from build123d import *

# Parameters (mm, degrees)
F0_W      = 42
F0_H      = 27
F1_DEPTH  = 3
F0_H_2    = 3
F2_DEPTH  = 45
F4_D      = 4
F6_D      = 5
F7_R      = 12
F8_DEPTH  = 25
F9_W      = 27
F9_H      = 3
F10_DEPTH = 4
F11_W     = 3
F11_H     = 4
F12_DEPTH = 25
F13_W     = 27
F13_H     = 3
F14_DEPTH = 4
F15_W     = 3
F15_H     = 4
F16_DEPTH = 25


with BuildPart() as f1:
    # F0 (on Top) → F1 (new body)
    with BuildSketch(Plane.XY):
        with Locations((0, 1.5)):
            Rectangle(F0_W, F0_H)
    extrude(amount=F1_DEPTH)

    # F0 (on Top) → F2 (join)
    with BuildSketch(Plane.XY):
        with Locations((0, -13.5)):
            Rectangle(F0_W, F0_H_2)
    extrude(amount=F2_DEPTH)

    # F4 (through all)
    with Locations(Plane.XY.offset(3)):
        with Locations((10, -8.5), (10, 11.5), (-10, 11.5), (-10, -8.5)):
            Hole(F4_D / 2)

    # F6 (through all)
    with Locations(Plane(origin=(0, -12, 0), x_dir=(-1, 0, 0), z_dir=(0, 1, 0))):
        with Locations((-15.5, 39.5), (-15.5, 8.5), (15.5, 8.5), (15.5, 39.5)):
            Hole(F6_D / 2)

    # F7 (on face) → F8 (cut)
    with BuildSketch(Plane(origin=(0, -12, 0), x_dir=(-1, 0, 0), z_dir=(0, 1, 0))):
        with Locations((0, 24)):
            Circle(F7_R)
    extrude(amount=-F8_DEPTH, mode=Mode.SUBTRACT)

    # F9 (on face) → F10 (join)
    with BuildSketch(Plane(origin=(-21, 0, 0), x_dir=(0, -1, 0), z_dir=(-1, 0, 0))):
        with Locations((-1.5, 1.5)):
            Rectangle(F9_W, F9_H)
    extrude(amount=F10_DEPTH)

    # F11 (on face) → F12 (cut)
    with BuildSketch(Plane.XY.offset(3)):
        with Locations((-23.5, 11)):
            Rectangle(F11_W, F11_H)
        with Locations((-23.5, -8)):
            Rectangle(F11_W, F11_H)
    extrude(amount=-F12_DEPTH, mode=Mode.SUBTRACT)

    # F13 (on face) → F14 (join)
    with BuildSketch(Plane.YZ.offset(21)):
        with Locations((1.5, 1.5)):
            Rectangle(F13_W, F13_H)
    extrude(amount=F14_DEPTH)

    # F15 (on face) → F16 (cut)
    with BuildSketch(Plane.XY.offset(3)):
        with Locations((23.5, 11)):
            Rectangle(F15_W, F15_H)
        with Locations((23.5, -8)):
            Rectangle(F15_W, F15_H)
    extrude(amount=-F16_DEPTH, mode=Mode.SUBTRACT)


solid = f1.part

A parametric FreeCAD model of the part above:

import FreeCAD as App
import Part
import Sketcher
from FreeCAD import Vector

doc = App.newDocument("Part")
body = doc.addObject("PartDesign::Body", "Body")

sketch1 = doc.addObject("Sketcher::SketchObject", "Sketch")
body.addObject(sketch1)
sketch1.AttachmentSupport = (doc.XY_Plane, [""])
sketch1.MapMode = "FlatFace"
sketch1.addGeometry([
    Part.LineSegment(Vector(-21, 15, 0), Vector(-21, -12, 0)),
    Part.LineSegment(Vector(-21, -12, 0), Vector(21, -12, 0)),
    Part.LineSegment(Vector(21, -12, 0), Vector(21, 15, 0)),
    Part.LineSegment(Vector(21, 15, 0), Vector(-21, 15, 0)),
], False)
sketch1.addConstraint([
    Sketcher.Constraint("Coincident", 0, 2, 1, 1),
    Sketcher.Constraint("Coincident", 1, 2, 2, 1),
    Sketcher.Constraint("Coincident", 2, 2, 3, 1),
    Sketcher.Constraint("Coincident", 3, 2, 0, 1),
    Sketcher.Constraint("Vertical", 0),
    Sketcher.Constraint("Horizontal", 1),
    Sketcher.Constraint("Vertical", 2),
    Sketcher.Constraint("Horizontal", 3),
    Sketcher.Constraint("DistanceX", 1, 1, 1, 2, 42.0),
    Sketcher.Constraint("DistanceY", 0, 2, 0, 1, 27.0),
    Sketcher.Constraint("DistanceX", 0, 2, -1, 1, 21.0),
    Sketcher.Constraint("DistanceY", 0, 2, -1, 1, 12.0),
])
pad1 = doc.addObject("PartDesign::Pad", "Pad")
body.addObject(pad1)
pad1.Profile = sketch1
pad1.Length = 3

sketch2 = doc.addObject("Sketcher::SketchObject", "Sketch001")
body.addObject(sketch2)
sketch2.AttachmentSupport = (doc.XY_Plane, [""])
sketch2.MapMode = "FlatFace"
sketch2.addGeometry([
    Part.LineSegment(Vector(-21, -12, 0), Vector(-21, -15, 0)),
    Part.LineSegment(Vector(-21, -15, 0), Vector(21, -15, 0)),
    Part.LineSegment(Vector(21, -15, 0), Vector(21, -12, 0)),
    Part.LineSegment(Vector(21, -12, 0), Vector(-21, -12, 0)),
], False)
sketch2.addConstraint([
    Sketcher.Constraint("Coincident", 0, 2, 1, 1),
    Sketcher.Constraint("Coincident", 1, 2, 2, 1),
    Sketcher.Constraint("Coincident", 2, 2, 3, 1),
    Sketcher.Constraint("Coincident", 3, 2, 0, 1),
    Sketcher.Constraint("Vertical", 0),
    Sketcher.Constraint("Horizontal", 1),
    Sketcher.Constraint("Vertical", 2),
    Sketcher.Constraint("Horizontal", 3),
    Sketcher.Constraint("DistanceX", 1, 1, 1, 2, 42.0),
    Sketcher.Constraint("DistanceY", 0, 2, 0, 1, 3.0),
    Sketcher.Constraint("DistanceX", 0, 2, -1, 1, 21.0),
    Sketcher.Constraint("DistanceY", 0, 2, -1, 1, 15.0),
])
pad2 = doc.addObject("PartDesign::Pad", "Pad001")
body.addObject(pad2)
pad2.Profile = sketch2
pad2.Length = 45

sketch3 = doc.addObject("Sketcher::SketchObject", "Sketch002")
body.addObject(sketch3)
sketch3.AttachmentSupport = (doc.XY_Plane, [""])
sketch3.MapMode = "FlatFace"
sketch3.AttachmentOffset = App.Placement(Vector(0, 0, 3), App.Rotation())
sketch3.addGeometry([
    Part.Circle(Vector(10, -8.5, 0), Vector(0, 0, 1), 2),
    Part.Circle(Vector(10, 11.5, 0), Vector(0, 0, 1), 2),
    Part.Circle(Vector(-10, 11.5, 0), Vector(0, 0, 1), 2),
    Part.Circle(Vector(-10, -8.5, 0), Vector(0, 0, 1), 2),
], False)
sketch3.addConstraint([
    Sketcher.Constraint("Equal", 0, 1),
    Sketcher.Constraint("Equal", 1, 2),
    Sketcher.Constraint("Equal", 2, 3),
    Sketcher.Constraint("Symmetric", 1, 3, 2, 3, -2),
    Sketcher.Constraint("Symmetric", 0, 3, 3, 3, -2),
    Sketcher.Constraint("Vertical", 0, 3, 1, 3),
    Sketcher.Constraint("Diameter", 0, 4.0),
    Sketcher.Constraint("DistanceX", -1, 1, 0, 3, 10.0),
    Sketcher.Constraint("DistanceY", 0, 3, 1, 3, 20.0),
    Sketcher.Constraint("DistanceY", 0, 3, -1, 1, 8.5),
])
doc.recompute()
hole = doc.addObject("PartDesign::Hole", "Hole")
body.addObject(hole)
hole.Profile = sketch3
hole.ThreadType = "None"
hole.Diameter = 4
hole.DepthType = "ThroughAll"

sketch4 = doc.addObject("Sketcher::SketchObject", "Sketch003")
body.addObject(sketch4)
sketch4.AttachmentSupport = (doc.XZ_Plane, [""])
sketch4.MapMode = "FlatFace"
sketch4.AttachmentOffset = App.Placement(Vector(0, 0, 12), App.Rotation())
sketch4.addGeometry([
    Part.Circle(Vector(15.5, 39.5, 0), Vector(0, 0, 1), 2.5),
    Part.Circle(Vector(15.5, 8.5, 0), Vector(0, 0, 1), 2.5),
    Part.Circle(Vector(-15.5, 8.5, 0), Vector(0, 0, 1), 2.5),
    Part.Circle(Vector(-15.5, 39.5, 0), Vector(0, 0, 1), 2.5),
], False)
sketch4.addConstraint([
    Sketcher.Constraint("Equal", 0, 1),
    Sketcher.Constraint("Equal", 1, 2),
    Sketcher.Constraint("Equal", 2, 3),
    Sketcher.Constraint("Symmetric", 1, 3, 2, 3, -2),
    Sketcher.Constraint("Symmetric", 0, 3, 3, 3, -2),
    Sketcher.Constraint("Vertical", 0, 3, 1, 3),
    Sketcher.Constraint("Diameter", 0, 5.0),
    Sketcher.Constraint("DistanceY", 1, 3, 0, 3, 31.0),
    Sketcher.Constraint("DistanceX", 2, 3, 1, 3, 31.0),
    Sketcher.Constraint("DistanceY", -1, 1, 0, 3, 39.5),
])
doc.recompute()
hole2 = doc.addObject("PartDesign::Hole", "Hole001")
body.addObject(hole2)
hole2.Profile = sketch4
hole2.ThreadType = "None"
hole2.Diameter = 5
hole2.DepthType = "ThroughAll"
hole2.Reversed = True

sketch5 = doc.addObject("Sketcher::SketchObject", "Sketch004")
body.addObject(sketch5)
sketch5.AttachmentSupport = (doc.XZ_Plane, [""])
sketch5.MapMode = "FlatFace"
sketch5.AttachmentOffset = App.Placement(Vector(0, 0, 12), App.Rotation())
sketch5.addGeometry(Part.Circle(Vector(0, 24, 0), Vector(0, 0, 1), 12), False)
sketch5.addConstraint([
    Sketcher.Constraint("PointOnObject", 0, 3, -2),
    Sketcher.Constraint("Diameter", 0, 24.0),
    Sketcher.Constraint("DistanceY", -1, 1, 0, 3, 24.0),
])
pocket1 = doc.addObject("PartDesign::Pocket", "Pocket")
body.addObject(pocket1)
pocket1.Profile = sketch5
pocket1.Length = 25
pocket1.Reversed = True

sketch6 = doc.addObject("Sketcher::SketchObject", "Sketch005")
body.addObject(sketch6)
sketch6.AttachmentSupport = (doc.YZ_Plane, [""])
sketch6.MapMode = "FlatFace"
sketch6.AttachmentOffset = App.Placement(Vector(0, 0, -21), App.Rotation())
sketch6.addGeometry([
    Part.LineSegment(Vector(15, 3, 0), Vector(15, 0, 0)),
    Part.LineSegment(Vector(15, 0, 0), Vector(-12, 0, 0)),
    Part.LineSegment(Vector(-12, 0, 0), Vector(-12, 3, 0)),
    Part.LineSegment(Vector(-12, 3, 0), Vector(15, 3, 0)),
], False)
sketch6.addConstraint([
    Sketcher.Constraint("Coincident", 0, 2, 1, 1),
    Sketcher.Constraint("Coincident", 1, 2, 2, 1),
    Sketcher.Constraint("Coincident", 2, 2, 3, 1),
    Sketcher.Constraint("Coincident", 3, 2, 0, 1),
    Sketcher.Constraint("Vertical", 0),
    Sketcher.Constraint("Horizontal", 1),
    Sketcher.Constraint("Vertical", 2),
    Sketcher.Constraint("Horizontal", 3),
    Sketcher.Constraint("PointOnObject", 0, 2, -1),
    Sketcher.Constraint("DistanceX", 1, 2, 1, 1, 27.0),
    Sketcher.Constraint("DistanceY", 0, 2, 0, 1, 3.0),
    Sketcher.Constraint("DistanceX", -1, 1, 0, 2, 15.0),
])
pad3 = doc.addObject("PartDesign::Pad", "Pad002")
body.addObject(pad3)
pad3.Profile = sketch6
pad3.Length = 4
pad3.Reversed = True

sketch7 = doc.addObject("Sketcher::SketchObject", "Sketch006")
body.addObject(sketch7)
sketch7.AttachmentSupport = (doc.XY_Plane, [""])
sketch7.MapMode = "FlatFace"
sketch7.AttachmentOffset = App.Placement(Vector(0, 0, 3), App.Rotation())
sketch7.addGeometry([
    Part.LineSegment(Vector(-25, 13, 0), Vector(-25, 9, 0)),
    Part.LineSegment(Vector(-25, 9, 0), Vector(-22, 9, 0)),
    Part.LineSegment(Vector(-22, 9, 0), Vector(-22, 13, 0)),
    Part.LineSegment(Vector(-22, 13, 0), Vector(-25, 13, 0)),
    Part.LineSegment(Vector(-25, -6, 0), Vector(-25, -10, 0)),
    Part.LineSegment(Vector(-25, -10, 0), Vector(-22, -10, 0)),
    Part.LineSegment(Vector(-22, -10, 0), Vector(-22, -6, 0)),
    Part.LineSegment(Vector(-22, -6, 0), Vector(-25, -6, 0)),
], False)
sketch7.addConstraint([
    Sketcher.Constraint("Coincident", 0, 2, 1, 1),
    Sketcher.Constraint("Coincident", 1, 2, 2, 1),
    Sketcher.Constraint("Coincident", 2, 2, 3, 1),
    Sketcher.Constraint("Coincident", 3, 2, 0, 1),
    Sketcher.Constraint("Coincident", 4, 2, 5, 1),
    Sketcher.Constraint("Coincident", 5, 2, 6, 1),
    Sketcher.Constraint("Coincident", 6, 2, 7, 1),
    Sketcher.Constraint("Coincident", 7, 2, 4, 1),
    Sketcher.Constraint("Vertical", 0),
    Sketcher.Constraint("Horizontal", 1),
    Sketcher.Constraint("Vertical", 2),
    Sketcher.Constraint("Horizontal", 3),
    Sketcher.Constraint("Vertical", 4),
    Sketcher.Constraint("Horizontal", 5),
    Sketcher.Constraint("Vertical", 6),
    Sketcher.Constraint("Horizontal", 7),
    Sketcher.Constraint("Vertical", 3, 2, 4, 2),
    Sketcher.Constraint("Vertical", 2, 2, 5, 2),
    Sketcher.Constraint("Equal", 2, 4),
    Sketcher.Constraint("DistanceX", 1, 1, 1, 2, 3.0),
    Sketcher.Constraint("DistanceY", 0, 2, 0, 1, 4.0),
    Sketcher.Constraint("DistanceX", 0, 2, -1, 1, 25.0),
    Sketcher.Constraint("DistanceY", -1, 1, 0, 2, 9.0),
    Sketcher.Constraint("DistanceY", 4, 2, -1, 1, 10.0),
])
pocket2 = doc.addObject("PartDesign::Pocket", "Pocket001")
body.addObject(pocket2)
pocket2.Profile = sketch7
pocket2.Length = 25

sketch8 = doc.addObject("Sketcher::SketchObject", "Sketch007")
body.addObject(sketch8)
sketch8.AttachmentSupport = (doc.YZ_Plane, [""])
sketch8.MapMode = "FlatFace"
sketch8.AttachmentOffset = App.Placement(Vector(0, 0, 21), App.Rotation())
sketch8.addGeometry([
    Part.LineSegment(Vector(-12, 3, 0), Vector(-12, 0, 0)),
    Part.LineSegment(Vector(-12, 0, 0), Vector(15, 0, 0)),
    Part.LineSegment(Vector(15, 0, 0), Vector(15, 3, 0)),
    Part.LineSegment(Vector(15, 3, 0), Vector(-12, 3, 0)),
], False)
sketch8.addConstraint([
    Sketcher.Constraint("Coincident", 0, 2, 1, 1),
    Sketcher.Constraint("Coincident", 1, 2, 2, 1),
    Sketcher.Constraint("Coincident", 2, 2, 3, 1),
    Sketcher.Constraint("Coincident", 3, 2, 0, 1),
    Sketcher.Constraint("Vertical", 0),
    Sketcher.Constraint("Horizontal", 1),
    Sketcher.Constraint("Vertical", 2),
    Sketcher.Constraint("Horizontal", 3),
    Sketcher.Constraint("PointOnObject", 0, 2, -1),
    Sketcher.Constraint("DistanceX", 1, 1, 1, 2, 27.0),
    Sketcher.Constraint("DistanceY", 0, 2, 0, 1, 3.0),
    Sketcher.Constraint("DistanceX", 0, 2, -1, 1, 12.0),
])
pad4 = doc.addObject("PartDesign::Pad", "Pad003")
body.addObject(pad4)
pad4.Profile = sketch8
pad4.Length = 4

sketch9 = doc.addObject("Sketcher::SketchObject", "Sketch008")
body.addObject(sketch9)
sketch9.AttachmentSupport = (doc.XY_Plane, [""])
sketch9.MapMode = "FlatFace"
sketch9.AttachmentOffset = App.Placement(Vector(0, 0, 3), App.Rotation())
sketch9.addGeometry([
    Part.LineSegment(Vector(22, 13, 0), Vector(22, 9, 0)),
    Part.LineSegment(Vector(22, 9, 0), Vector(25, 9, 0)),
    Part.LineSegment(Vector(25, 9, 0), Vector(25, 13, 0)),
    Part.LineSegment(Vector(25, 13, 0), Vector(22, 13, 0)),
    Part.LineSegment(Vector(22, -6, 0), Vector(22, -10, 0)),
    Part.LineSegment(Vector(22, -10, 0), Vector(25, -10, 0)),
    Part.LineSegment(Vector(25, -10, 0), Vector(25, -6, 0)),
    Part.LineSegment(Vector(25, -6, 0), Vector(22, -6, 0)),
], False)
sketch9.addConstraint([
    Sketcher.Constraint("Coincident", 0, 2, 1, 1),
    Sketcher.Constraint("Coincident", 1, 2, 2, 1),
    Sketcher.Constraint("Coincident", 2, 2, 3, 1),
    Sketcher.Constraint("Coincident", 3, 2, 0, 1),
    Sketcher.Constraint("Coincident", 4, 2, 5, 1),
    Sketcher.Constraint("Coincident", 5, 2, 6, 1),
    Sketcher.Constraint("Coincident", 6, 2, 7, 1),
    Sketcher.Constraint("Coincident", 7, 2, 4, 1),
    Sketcher.Constraint("Vertical", 0),
    Sketcher.Constraint("Horizontal", 1),
    Sketcher.Constraint("Vertical", 2),
    Sketcher.Constraint("Horizontal", 3),
    Sketcher.Constraint("Vertical", 4),
    Sketcher.Constraint("Horizontal", 5),
    Sketcher.Constraint("Vertical", 6),
    Sketcher.Constraint("Horizontal", 7),
    Sketcher.Constraint("Vertical", 3, 2, 4, 2),
    Sketcher.Constraint("Vertical", 2, 2, 5, 2),
    Sketcher.Constraint("Equal", 2, 4),
    Sketcher.Constraint("DistanceX", 1, 1, 1, 2, 3.0),
    Sketcher.Constraint("DistanceY", 0, 2, 0, 1, 4.0),
    Sketcher.Constraint("DistanceX", -1, 1, 0, 2, 22.0),
    Sketcher.Constraint("DistanceY", -1, 1, 0, 2, 9.0),
    Sketcher.Constraint("DistanceY", 4, 2, -1, 1, 10.0),
])
pocket3 = doc.addObject("PartDesign::Pocket", "Pocket002")
body.addObject(pocket3)
pocket3.Profile = sketch9
pocket3.Length = 25

doc.recompute()
